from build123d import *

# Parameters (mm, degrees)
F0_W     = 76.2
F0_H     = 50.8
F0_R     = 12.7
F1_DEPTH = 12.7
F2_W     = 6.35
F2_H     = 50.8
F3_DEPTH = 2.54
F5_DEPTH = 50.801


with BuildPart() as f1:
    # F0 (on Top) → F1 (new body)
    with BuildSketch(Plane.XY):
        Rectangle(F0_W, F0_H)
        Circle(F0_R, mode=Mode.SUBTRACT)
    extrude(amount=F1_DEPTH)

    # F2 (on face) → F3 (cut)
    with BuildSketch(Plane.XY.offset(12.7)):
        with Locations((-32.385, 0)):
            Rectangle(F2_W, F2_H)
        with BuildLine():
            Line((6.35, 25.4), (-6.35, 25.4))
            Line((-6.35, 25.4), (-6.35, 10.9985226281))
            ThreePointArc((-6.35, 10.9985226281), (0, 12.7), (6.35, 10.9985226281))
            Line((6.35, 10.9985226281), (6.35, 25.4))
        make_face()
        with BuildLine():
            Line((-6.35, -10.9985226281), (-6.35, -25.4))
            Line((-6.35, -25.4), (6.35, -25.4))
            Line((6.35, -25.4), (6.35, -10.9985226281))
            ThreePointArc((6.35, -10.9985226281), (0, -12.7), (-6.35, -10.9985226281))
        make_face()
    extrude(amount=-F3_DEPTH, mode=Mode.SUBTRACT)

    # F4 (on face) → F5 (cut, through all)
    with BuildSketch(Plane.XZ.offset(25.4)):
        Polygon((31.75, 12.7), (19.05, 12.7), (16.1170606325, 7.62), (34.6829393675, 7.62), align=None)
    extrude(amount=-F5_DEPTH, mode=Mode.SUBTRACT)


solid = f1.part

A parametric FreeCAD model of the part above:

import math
import FreeCAD as App
import Part
import Sketcher

V = App.Vector
Q = App.Units.Quantity

doc = App.newDocument("Part")
body = doc.addObject("PartDesign::Body", "Body")

# Sketch on XY plane
sketch1 = body.newObject("Sketcher::SketchObject", "Sketch")
sketch1.AttachmentSupport = (doc.getObject("XY_Plane"), [""])
sketch1.MapMode = "FlatFace"
sketch1.addGeometry([
    Part.LineSegment(V(-38, 25, 0), V(-38, -25, 0)),  # 0
    Part.LineSegment(V(-38, -25, 0), V(38, -25, 0)),  # 1
    Part.LineSegment(V(38, -25, 0), V(38, 25, 0)),  # 2
    Part.LineSegment(V(38, 25, 0), V(-38, 25, 0)),  # 3
    Part.Circle(V(0, 0, 0), V(0, 0, 1), 13),  # 4
], False)
sketch1.addConstraint([
    Sketcher.Constraint("Coincident", 0, 2, 1, 1),
    Sketcher.Constraint("Coincident", 1, 2, 2, 1),
    Sketcher.Constraint("Coincident", 2, 2, 3, 1),
    Sketcher.Constraint("Coincident", 3, 2, 0, 1),
    Sketcher.Constraint("Vertical", 0),
    Sketcher.Constraint("Horizontal", 1),
    Sketcher.Constraint("Vertical", 2),
    Sketcher.Constraint("Horizontal", 3),
    Sketcher.Constraint("Coincident", 4, 3, -1, 1),
    Sketcher.Constraint("Symmetric", 0, 2, 2, 2, -1, 1),
    Sketcher.Constraint("Diameter", 4, Q("1 in")),
    Sketcher.Constraint("DistanceX", 1, 1, 1, 2, Q("3 in")),
    Sketcher.Constraint("DistanceY", 0, 2, 0, 1, Q("2 in")),
])
pad1 = body.newObject("PartDesign::Pad", "Pad")
pad1.Profile = sketch1
pad1.Length = Q("0.5 in")

# Sketch on XY plane
sketch2 = body.newObject("Sketcher::SketchObject", "Sketch001")
sketch2.AttachmentSupport = (doc.getObject("XY_Plane"), [""])
sketch2.MapMode = "FlatFace"
sketch2.AttachmentOffset = App.Placement(V(0, 0, 0.5 * 25.4), App.Rotation())
sketch2.addGeometry([
    Part.LineSegment(V(-36, 25, 0), V(-36, -25, 0)),  # 0
    Part.LineSegment(V(-36, -25, 0), V(-29, -25, 0)),  # 1
    Part.LineSegment(V(-29, -25, 0), V(-29, 25, 0)),  # 2
    Part.LineSegment(V(-29, 25, 0), V(-36, 25, 0)),  # 3
    Part.LineSegment(V(6, 25, 0), V(-6, 25, 0)),  # 4
    Part.LineSegment(V(-6, 25, 0), V(-6, 11, 0)),  # 5
    Part.ArcOfCircle(Part.Circle(V(0, 0, 0), V(0, 0, 1), 13), math.radians(60), math.radians(120)),  # 6
    Part.LineSegment(V(6, 11, 0), V(6, 25, 0)),  # 7
    Part.LineSegment(V(-6, -11, 0), V(-6, -25, 0)),  # 8
    Part.LineSegment(V(-6, -25, 0), V(6, -25, 0)),  # 9
    Part.LineSegment(V(6, -25, 0), V(6, -11, 0)),  # 10
    Part.ArcOfCircle(Part.Circle(V(0, 0, 0), V(0, 0, 1), 13), math.radians(-120), math.radians(-60)),  # 11
], False)
sketch2.addConstraint([
    Sketcher.Constraint("Coincident", 0, 2, 1, 1),
    Sketcher.Constraint("Coincident", 1, 2, 2, 1),
    Sketcher.Constraint("Coincident", 2, 2, 3, 1),
    Sketcher.Constraint("Coincident", 3, 2, 0, 1),
    Sketcher.Constraint("Coincident", 4, 2, 5, 1),
    Sketcher.Constraint("Coincident", 5, 2, 6, 2),
    Sketcher.Constraint("Coincident", 6, 1, 7, 1),
    Sketcher.Constraint("Coincident", 7, 2, 4, 1),
    Sketcher.Constraint("Coincident", 8, 2, 9, 1),
    Sketcher.Constraint("Coincident", 9, 2, 10, 1),
    Sketcher.Constraint("Coincident", 10, 2, 11, 2),
    Sketcher.Constraint("Coincident", 11, 1, 8, 1),
    Sketcher.Constraint("Vertical", 0),
    Sketcher.Constraint("Horizontal", 1),
    Sketcher.Constraint("Vertical", 2),
    Sketcher.Constraint("Horizontal", 3),
    Sketcher.Constraint("Horizontal", 4),
    Sketcher.Constraint("Vertical", 5),
    Sketcher.Constraint("Vertical", 7),
    Sketcher.Constraint("Vertical", 8),
    Sketcher.Constraint("Horizontal", 9),
    Sketcher.Constraint("Vertical", 10),
    Sketcher.Constraint("Coincident", 6, 3, -1, 1),
    Sketcher.Constraint("Coincident", 11, 3, -1, 1),
    Sketcher.Constraint("Equal", 6, 11),
    Sketcher.Constraint("Symmetric", 7, 2, 8, 2, -1, 1),
    Sketcher.Constraint("Horizontal", 3, 2, 4, 2),
    Sketcher.Constraint("Horizontal", 5, 2, 6, 1),
    Sketcher.Constraint("Horizontal", 1, 2, 8, 2),
    Sketcher.Constraint("Horizontal", 10, 2, 11, 1),
    Sketcher.Constraint("Radius", 6, Q("0.5 in")),
    Sketcher.Constraint("DistanceY", 0, 2, 0, 1, Q("2 in")),
    Sketcher.Constraint("DistanceX", 4, 2, 4, 1, Q("0.5 in")),
    Sketcher.Constraint("DistanceX", 1, 1, 1, 2, Q("0.25 in")),
    Sketcher.Constraint("DistanceX", 0, 2, -1, 1, Q("1.4 in")),
])
pocket1 = body.newObject("PartDesign::Pocket", "Pocket")
pocket1.Profile = sketch2
pocket1.Length = Q("0.1 in")

# Sketch on XZ plane
sketch3 = body.newObject("Sketcher::SketchObject", "Sketch002")
sketch3.AttachmentSupport = (doc.getObject("XZ_Plane"), [""])
sketch3.MapMode = "FlatFace"
sketch3.AttachmentOffset = App.Placement(V(0, 0, 1 * 25.4), App.Rotation())
sketch3.addGeometry([
    Part.LineSegment(V(32, 13, 0), V(19, 13, 0)),
    Part.LineSegment(V(19, 13, 0), V(16, 8, 0)),
    Part.LineSegment(V(16, 8, 0), V(35, 8, 0)),
    Part.LineSegment(V(35, 8, 0), V(32, 13, 0)),
], False)
sketch3.addConstraint([
    Sketcher.Constraint("Coincident", 0, 2, 1, 1),
    Sketcher.Constraint("Coincident", 1, 2, 2, 1),
    Sketcher.Constraint("Coincident", 2, 2, 3, 1),
    Sketcher.Constraint("Coincident", 3, 2, 0, 1),
    Sketcher.Constraint("Horizontal", 0),
    Sketcher.Constraint("Horizontal", 2),
    Sketcher.Constraint("Equal", 1, 3),
    Sketcher.Constraint("DistanceX", 0, 2, 0, 1, Q("0.5 in")),
    Sketcher.Constraint("Angle", 1, Q("-120 deg")),
    Sketcher.Constraint("DistanceY", -1, 1, 0, 2, Q("0.5 in")),
    Sketcher.Constraint("DistanceY", -1, 1, 1, 2, Q("0.3 in")),
    Sketcher.Constraint("DistanceX", -1, 1, 0, 2, Q("0.75 in")),
])
pocket2 = body.newObject("PartDesign::Pocket", "Pocket001")
pocket2.Profile = sketch3
pocket2.Type = "ThroughAll"

doc.recompute()
